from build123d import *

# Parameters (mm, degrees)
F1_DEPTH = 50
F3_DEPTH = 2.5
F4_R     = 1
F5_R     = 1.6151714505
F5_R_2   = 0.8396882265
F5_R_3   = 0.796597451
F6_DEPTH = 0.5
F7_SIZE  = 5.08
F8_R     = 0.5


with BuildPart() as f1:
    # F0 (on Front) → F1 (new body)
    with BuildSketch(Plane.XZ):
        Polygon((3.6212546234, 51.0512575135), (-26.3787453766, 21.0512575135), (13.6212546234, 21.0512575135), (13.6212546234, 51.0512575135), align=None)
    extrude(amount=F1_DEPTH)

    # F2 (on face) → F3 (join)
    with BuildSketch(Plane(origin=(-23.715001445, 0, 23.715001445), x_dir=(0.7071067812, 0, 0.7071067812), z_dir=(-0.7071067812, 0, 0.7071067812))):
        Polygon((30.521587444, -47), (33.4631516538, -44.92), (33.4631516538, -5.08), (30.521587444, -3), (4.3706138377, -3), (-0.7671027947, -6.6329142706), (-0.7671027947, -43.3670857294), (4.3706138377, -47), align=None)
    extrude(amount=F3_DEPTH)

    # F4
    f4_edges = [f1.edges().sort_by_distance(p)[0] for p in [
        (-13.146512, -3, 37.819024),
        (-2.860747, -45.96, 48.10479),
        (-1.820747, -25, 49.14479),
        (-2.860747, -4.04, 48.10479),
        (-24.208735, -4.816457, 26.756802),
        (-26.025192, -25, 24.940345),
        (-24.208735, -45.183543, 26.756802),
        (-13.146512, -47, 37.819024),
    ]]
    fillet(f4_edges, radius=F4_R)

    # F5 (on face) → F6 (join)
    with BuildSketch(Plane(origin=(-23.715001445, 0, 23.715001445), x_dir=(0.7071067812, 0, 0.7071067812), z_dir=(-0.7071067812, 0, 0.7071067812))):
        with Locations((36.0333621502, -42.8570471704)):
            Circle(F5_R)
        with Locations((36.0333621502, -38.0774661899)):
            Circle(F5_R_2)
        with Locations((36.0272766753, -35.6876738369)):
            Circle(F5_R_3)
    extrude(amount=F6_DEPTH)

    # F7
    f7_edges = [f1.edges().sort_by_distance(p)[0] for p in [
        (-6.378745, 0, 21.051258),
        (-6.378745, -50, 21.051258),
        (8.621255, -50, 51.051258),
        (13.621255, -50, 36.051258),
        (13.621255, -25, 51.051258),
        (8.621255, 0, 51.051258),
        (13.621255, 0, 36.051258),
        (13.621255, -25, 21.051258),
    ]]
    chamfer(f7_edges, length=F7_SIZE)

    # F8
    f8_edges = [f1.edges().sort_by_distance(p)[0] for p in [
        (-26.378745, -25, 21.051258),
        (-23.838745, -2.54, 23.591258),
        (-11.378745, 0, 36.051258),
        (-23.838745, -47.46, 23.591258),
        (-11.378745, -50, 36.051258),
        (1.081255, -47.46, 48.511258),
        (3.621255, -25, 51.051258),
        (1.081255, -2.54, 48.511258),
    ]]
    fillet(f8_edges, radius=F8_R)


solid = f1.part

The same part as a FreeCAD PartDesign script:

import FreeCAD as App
import Part
import Sketcher


def edges_at(feature, points):
    """Names of the edges that pass closest to the given points."""
    edges = feature.Shape.Edges
    near = lambda p: min(range(len(edges)), key=lambda i: edges[i].distToShape(Part.Vertex(*p))[0])
    return sorted({f"Edge{near(p) + 1}" for p in points})

doc = App.newDocument("Part")
body = doc.addObject("PartDesign::Body", "Body")

# Sketch on XZ plane
sketch1 = body.newObject("Sketcher::SketchObject", "Sketch")
sketch1.AttachmentSupport = (doc.getObject("XZ_Plane"), [""])
sketch1.MapMode = "FlatFace"
sketch1.addGeometry(Part.LineSegment(App.Vector(4, 51, 0), App.Vector(-26, 21, 0)), False)
sketch1.addGeometry(Part.LineSegment(App.Vector(-26, 21, 0), App.Vector(14, 21, 0)), False)
sketch1.addGeometry(Part.LineSegment(App.Vector(14, 21, 0), App.Vector(14, 51, 0)), False)
sketch1.addGeometry(Part.LineSegment(App.Vector(14, 51, 0), App.Vector(4, 51, 0)), False)
sketch1.addConstraint(Sketcher.Constraint("Coincident", 0, 2, 1, 1))
sketch1.addConstraint(Sketcher.Constraint("Coincident", 1, 2, 2, 1))
sketch1.addConstraint(Sketcher.Constraint("Coincident", 2, 2, 3, 1))
sketch1.addConstraint(Sketcher.Constraint("Coincident", 3, 2, 0, 1))
sketch1.addConstraint(Sketcher.Constraint("Horizontal", 1))
sketch1.addConstraint(Sketcher.Constraint("Vertical", 2))
sketch1.addConstraint(Sketcher.Constraint("Horizontal", 3))
sketch1.addConstraint(Sketcher.Constraint("DistanceX", 1, 1, 1, 2, 40.0))
sketch1.addConstraint(Sketcher.Constraint("DistanceX", 3, 2, 3, 1, 10.0))
sketch1.addConstraint(Sketcher.Constraint("DistanceY", 2, 1, 2, 2, 30.0))
sketch1.addConstraint(Sketcher.Constraint("DistanceX", 0, 2, -1, 1, 26.378745))
sketch1.addConstraint(Sketcher.Constraint("DistanceY", -1, 1, 0, 2, 21.051258))
pad1 = body.newObject("PartDesign::Pad", "Pad")
pad1.Profile = sketch1
pad1.Length = 50

# Sketch on an angled plane
sketch2 = body.newObject("Sketcher::SketchObject", "Sketch001")
sketch2.Placement = App.Placement(App.Vector(-23.715001, 0, 23.715001), App.Rotation(App.Vector(0.707106781, 0, 0.707106781), App.Vector(0, 0.999999999, 0), App.Vector(-0.707106781, 0, 0.707106781), "ZXY"))
sketch2.addGeometry(Part.LineSegment(App.Vector(30.5, -47, 0), App.Vector(33.5, -44.9, 0)), False)
sketch2.addGeometry(Part.LineSegment(App.Vector(33.5, -44.9, 0), App.Vector(33.5, -5.1, 0)), False)
sketch2.addGeometry(Part.LineSegment(App.Vector(33.5, -5.1, 0), App.Vector(30.5, -3, 0)), False)
sketch2.addGeometry(Part.LineSegment(App.Vector(30.5, -3, 0), App.Vector(4.4, -3, 0)), False)
sketch2.addGeometry(Part.LineSegment(App.Vector(4.4, -3, 0), App.Vector(-0.8, -6.6, 0)), False)
sketch2.addGeometry(Part.LineSegment(App.Vector(-0.8, -6.6, 0), App.Vector(-0.8, -43.4, 0)), False)
sketch2.addGeometry(Part.LineSegment(App.Vector(-0.8, -43.4, 0), App.Vector(4.4, -47, 0)), False)
sketch2.addGeometry(Part.LineSegment(App.Vector(4.4, -47, 0), App.Vector(30.5, -47, 0)), False)
sketch2.addConstraint(Sketcher.Constraint("Coincident", 0, 2, 1, 1))
sketch2.addConstraint(Sketcher.Constraint("Coincident", 1, 2, 2, 1))
sketch2.addConstraint(Sketcher.Constraint("Coincident", 2, 2, 3, 1))
sketch2.addConstraint(Sketcher.Constraint("Coincident", 3, 2, 4, 1))
sketch2.addConstraint(Sketcher.Constraint("Coincident", 4, 2, 5, 1))
sketch2.addConstraint(Sketcher.Constraint("Coincident", 5, 2, 6, 1))
sketch2.addConstraint(Sketcher.Constraint("Coincident", 6, 2, 7, 1))
sketch2.addConstraint(Sketcher.Constraint("Coincident", 7, 2, 0, 1))
sketch2.addConstraint(Sketcher.Constraint("Vertical", 1))
sketch2.addConstraint(Sketcher.Constraint("Horizontal", 3))
sketch2.addConstraint(Sketcher.Constraint("Vertical", 5))
sketch2.addConstraint(Sketcher.Constraint("Horizontal", 7))
sketch2.addConstraint(Sketcher.Constraint("Parallel", 0, 4))
sketch2.addConstraint(Sketcher.Constraint("Parallel", 2, 6))
sketch2.addConstraint(Sketcher.Constraint("Vertical", 3, 2, 6, 2))
sketch2.addConstraint(Sketcher.Constraint("Vertical", 2, 2, 7, 2))
sketch2.addConstraint(Sketcher.Constraint("Equal", 0, 2))
sketch2.addConstraint(Sketcher.Constraint("DistanceY", 2, 2, -1, 1, 3.0))
sketch2.addConstraint(Sketcher.Constraint("DistanceY", 6, 2, -1, 1, 47.0))
sketch2.addConstraint(Sketcher.Constraint("DistanceY", 1, 1, 1, 2, 39.84))
sketch2.addConstraint(Sketcher.Constraint("DistanceY", 5, 2, 5, 1, 36.734171))
sketch2.addConstraint(Sketcher.Constraint("DistanceX", 3, 2, 3, 1, 26.150974))
sketch2.addConstraint(Sketcher.Constraint("DistanceX", -1, 1, 0, 2, 33.463152))
sketch2.addConstraint(Sketcher.Constraint("DistanceX", 4, 2, 2, 2, 31.28869))
pad2 = body.newObject("PartDesign::Pad", "Pad001")
pad2.Profile = sketch2
pad2.Length = 2.5
doc.recompute()

fillet = body.newObject("PartDesign::Fillet", "Fillet")
fillet.Base = (pad2, edges_at(pad2, [
    (-13.147, -3, 37.819),
    (-2.861, -45.96, 48.105),
    (-1.821, -25, 49.145),
    (-2.861, -4.04, 48.105),
    (-24.209, -4.816, 26.757),
    (-26.025, -25, 24.94),
    (-24.209, -45.184, 26.757),
    (-13.147, -47, 37.819),
]))
fillet.Radius = 1

# Sketch on an angled plane
sketch3 = body.newObject("Sketcher::SketchObject", "Sketch002")
sketch3.Placement = App.Placement(App.Vector(-23.715001, 0, 23.715001), App.Rotation(App.Vector(0.707106781, 0, 0.707106781), App.Vector(0, 0.999999999, 0), App.Vector(-0.707106781, 0, 0.707106781), "ZXY"))
sketch3.addGeometry(Part.Circle(App.Vector(36, -42.9, 0), App.Vector(0, 0, 1), 1.6), False)
sketch3.addGeometry(Part.Circle(App.Vector(36, -38.1, 0), App.Vector(0, 0, 1), 0.8), False)
sketch3.addGeometry(Part.Circle(App.Vector(36, -35.7, 0), App.Vector(0, 0, 1), 0.8), False)
sketch3.addConstraint(Sketcher.Constraint("Vertical", 0, 3, 1, 3))
sketch3.addConstraint(Sketcher.Constraint("Diameter", 0, 3.230343))
sketch3.addConstraint(Sketcher.Constraint("Diameter", 1, 1.679376))
sketch3.addConstraint(Sketcher.Constraint("Diameter", 2, 1.593195))
sketch3.addConstraint(Sketcher.Constraint("DistanceY", 0, 3, 1, 3, 4.779581))
sketch3.addConstraint(Sketcher.Constraint("DistanceX", -1, 1, 0, 3, 36.033362))
sketch3.addConstraint(Sketcher.Constraint("DistanceY", 0, 3, -1, 1, 42.857047))
sketch3.addConstraint(Sketcher.Constraint("DistanceX", -1, 1, 2, 3, 36.027277))
sketch3.addConstraint(Sketcher.Constraint("DistanceY", 2, 3, -1, 1, 35.687674))
pad3 = body.newObject("PartDesign::Pad", "Pad002")
pad3.Profile = sketch3
pad3.Length = 0.5
doc.recompute()

chamfer = body.newObject("PartDesign::Chamfer", "Chamfer")
chamfer.Base = (pad3, edges_at(pad3, [
    (-6.379, 0, 21.051),
    (-6.379, -50, 21.051),
    (8.621, -50, 51.051),
    (13.621, -50, 36.051),
    (13.621, -25, 51.051),
    (8.621, 0, 51.051),
    (13.621, 0, 36.051),
    (13.621, -25, 21.051),
]))
chamfer.Size = 5.08
doc.recompute()

fillet2 = body.newObject("PartDesign::Fillet", "Fillet001")
fillet2.Base = (chamfer, edges_at(chamfer, [
    (-26.379, -25, 21.051),
    (-23.839, -2.54, 23.591),
    (-11.379, 0, 36.051),
    (-23.839, -47.46, 23.591),
    (-11.379, -50, 36.051),
    (1.081, -47.46, 48.511),
    (3.621, -25, 51.051),
    (1.081, -2.54, 48.511),
]))
fillet2.Radius = 0.5

doc.recompute()
